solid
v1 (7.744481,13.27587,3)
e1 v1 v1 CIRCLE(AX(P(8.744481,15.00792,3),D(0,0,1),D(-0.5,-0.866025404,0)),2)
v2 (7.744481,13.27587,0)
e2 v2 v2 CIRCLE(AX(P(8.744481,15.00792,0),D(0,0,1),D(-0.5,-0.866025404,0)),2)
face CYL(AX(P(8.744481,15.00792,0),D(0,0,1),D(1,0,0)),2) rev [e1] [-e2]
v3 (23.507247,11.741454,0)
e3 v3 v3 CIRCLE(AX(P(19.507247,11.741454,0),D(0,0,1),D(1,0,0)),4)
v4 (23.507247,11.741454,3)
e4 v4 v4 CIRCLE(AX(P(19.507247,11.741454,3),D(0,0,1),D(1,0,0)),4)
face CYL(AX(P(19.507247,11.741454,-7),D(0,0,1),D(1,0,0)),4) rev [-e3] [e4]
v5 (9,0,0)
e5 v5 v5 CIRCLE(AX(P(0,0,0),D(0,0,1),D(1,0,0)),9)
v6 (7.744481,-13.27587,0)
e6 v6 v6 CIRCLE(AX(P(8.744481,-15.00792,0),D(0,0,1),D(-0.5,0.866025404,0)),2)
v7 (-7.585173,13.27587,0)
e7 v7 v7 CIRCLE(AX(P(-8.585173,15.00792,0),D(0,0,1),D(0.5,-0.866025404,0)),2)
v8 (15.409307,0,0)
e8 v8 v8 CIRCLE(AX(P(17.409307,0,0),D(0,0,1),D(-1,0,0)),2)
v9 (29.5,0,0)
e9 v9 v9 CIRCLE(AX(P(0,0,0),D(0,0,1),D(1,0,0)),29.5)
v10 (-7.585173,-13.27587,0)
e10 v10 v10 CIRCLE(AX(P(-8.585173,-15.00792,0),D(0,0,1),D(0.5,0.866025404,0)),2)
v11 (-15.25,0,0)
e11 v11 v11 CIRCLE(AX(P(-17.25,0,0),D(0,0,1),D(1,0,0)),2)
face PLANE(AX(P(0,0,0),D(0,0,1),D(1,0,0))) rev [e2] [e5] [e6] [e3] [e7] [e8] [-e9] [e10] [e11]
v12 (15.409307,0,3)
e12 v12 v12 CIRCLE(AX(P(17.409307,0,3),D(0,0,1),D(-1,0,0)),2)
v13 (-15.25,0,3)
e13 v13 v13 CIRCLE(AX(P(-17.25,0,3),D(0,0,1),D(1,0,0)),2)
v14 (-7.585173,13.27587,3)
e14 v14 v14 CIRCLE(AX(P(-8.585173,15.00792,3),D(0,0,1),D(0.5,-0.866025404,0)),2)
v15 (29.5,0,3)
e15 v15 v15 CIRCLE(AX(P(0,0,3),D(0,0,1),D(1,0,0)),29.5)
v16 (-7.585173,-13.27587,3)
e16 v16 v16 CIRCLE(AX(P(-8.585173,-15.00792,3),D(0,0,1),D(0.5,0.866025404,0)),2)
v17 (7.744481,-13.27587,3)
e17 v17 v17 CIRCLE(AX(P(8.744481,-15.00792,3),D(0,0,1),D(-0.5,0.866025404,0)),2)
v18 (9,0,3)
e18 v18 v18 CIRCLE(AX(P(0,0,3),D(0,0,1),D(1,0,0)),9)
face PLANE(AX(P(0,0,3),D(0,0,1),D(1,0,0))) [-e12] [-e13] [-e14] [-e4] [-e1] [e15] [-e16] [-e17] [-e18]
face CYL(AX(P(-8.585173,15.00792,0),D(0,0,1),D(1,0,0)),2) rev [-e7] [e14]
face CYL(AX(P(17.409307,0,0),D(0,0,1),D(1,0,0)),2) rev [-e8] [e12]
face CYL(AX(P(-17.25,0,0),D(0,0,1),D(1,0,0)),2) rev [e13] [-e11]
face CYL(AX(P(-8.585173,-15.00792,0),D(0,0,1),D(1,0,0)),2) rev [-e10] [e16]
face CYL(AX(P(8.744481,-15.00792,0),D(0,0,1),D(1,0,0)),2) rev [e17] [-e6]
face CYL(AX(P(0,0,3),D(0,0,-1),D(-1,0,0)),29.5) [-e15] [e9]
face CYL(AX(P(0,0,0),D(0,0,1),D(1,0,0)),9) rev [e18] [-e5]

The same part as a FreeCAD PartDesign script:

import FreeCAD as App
import Part
import Sketcher
from FreeCAD import Vector
Q = App.Units.Quantity

doc = App.newDocument("Part")
body = doc.addObject("PartDesign::Body", "Body")

sketch1 = doc.addObject("Sketcher::SketchObject", "Sketch")
body.addObject(sketch1)
sketch1.AttachmentSupport = (doc.XY_Plane, [""])
sketch1.MapMode = "FlatFace"
sketch1.addGeometry(Part.Circle(Vector(0, 0, 0), Vector(0, 0, 1), 30), False)
sketch1.addConstraint([
    Sketcher.Constraint("Coincident", 0, 3, -1, 1),
    Sketcher.Constraint("Diameter", 0, Q("59 mm")),
])
pad1 = doc.addObject("PartDesign::Pad", "Pad")
body.addObject(pad1)
pad1.Profile = sketch1
pad1.Length = 3

sketch2 = doc.addObject("Sketcher::SketchObject", "Sketch001")
body.addObject(sketch2)
sketch2.AttachmentSupport = (doc.XY_Plane, [""])
sketch2.MapMode = "FlatFace"
sketch2.AttachmentOffset = App.Placement(Vector(0, 0, 3), App.Rotation())
sketch2.addGeometry(Part.Circle(Vector(-17.2, 0, 0), Vector(0, 0, 1), 2), False)
sketch2.addConstraint([
    Sketcher.Constraint("PointOnObject", 0, 3, -1),
    Sketcher.Constraint("Diameter", 0, Q("4 mm")),
    Sketcher.Constraint("DistanceX", 0, 3, -1, 1, Q("17.25 mm")),
])
pocket1 = doc.addObject("PartDesign::Pocket", "Pocket")
body.addObject(pocket1)
pocket1.Profile = sketch2
pocket1.Length = 3
doc.recompute()

datumline = doc.addObject("PartDesign::Line", "DatumLine")
body.addObject(datumline)
datumline.Placement = App.Placement(Vector(0.079654, 0, 0), App.Rotation(Vector(0, 0, 1), Vector(0, 0, 1)))
polarpattern = doc.addObject("PartDesign::PolarPattern", "PolarPattern")
body.addObject(polarpattern)
polarpattern.Originals = [pocket1]
polarpattern.Axis = (datumline, [""])
polarpattern.Angle = 360
polarpattern.Occurrences = 6
body.Tip = polarpattern

sketch3 = doc.addObject("Sketcher::SketchObject", "Sketch002")
body.addObject(sketch3)
sketch3.AttachmentSupport = (doc.XY_Plane, [""])
sketch3.MapMode = "FlatFace"
sketch3.AttachmentOffset = App.Placement(Vector(0, 0, 3), App.Rotation())
sketch3.addGeometry(Part.Circle(Vector(0, 0, 0), Vector(0, 0, 1), 9), False)
sketch3.addConstraint([
    Sketcher.Constraint("Coincident", 0, 3, -1, 1),
    Sketcher.Constraint("Diameter", 0, Q("18 mm")),
])
pocket2 = doc.addObject("PartDesign::Pocket", "Pocket001")
body.addObject(pocket2)
pocket2.Profile = sketch3
pocket2.Length = 3

sketch4 = doc.addObject("Sketcher::SketchObject", "Sketch003")
body.addObject(sketch4)
sketch4.AttachmentSupport = (doc.XY_Plane, [""])
sketch4.MapMode = "FlatFace"
sketch4.AttachmentOffset = App.Placement(Vector(0, 0, 3), App.Rotation())
sketch4.addGeometry(Part.Circle(Vector(19.5, 11.7, 0), Vector(0, 0, 1), 4), False)
sketch4.addConstraint([
    Sketcher.Constraint("Diameter", 0, Q("8 mm")),
    Sketcher.Constraint("DistanceX", -1, 1, 0, 3, Q("19.507247 mm")),
    Sketcher.Constraint("DistanceY", -1, 1, 0, 3, Q("11.741454 mm")),
])
pocket3 = doc.addObject("PartDesign::Pocket", "Pocket002")
body.addObject(pocket3)
pocket3.Profile = sketch4
pocket3.Length = 10

doc.recompute()
